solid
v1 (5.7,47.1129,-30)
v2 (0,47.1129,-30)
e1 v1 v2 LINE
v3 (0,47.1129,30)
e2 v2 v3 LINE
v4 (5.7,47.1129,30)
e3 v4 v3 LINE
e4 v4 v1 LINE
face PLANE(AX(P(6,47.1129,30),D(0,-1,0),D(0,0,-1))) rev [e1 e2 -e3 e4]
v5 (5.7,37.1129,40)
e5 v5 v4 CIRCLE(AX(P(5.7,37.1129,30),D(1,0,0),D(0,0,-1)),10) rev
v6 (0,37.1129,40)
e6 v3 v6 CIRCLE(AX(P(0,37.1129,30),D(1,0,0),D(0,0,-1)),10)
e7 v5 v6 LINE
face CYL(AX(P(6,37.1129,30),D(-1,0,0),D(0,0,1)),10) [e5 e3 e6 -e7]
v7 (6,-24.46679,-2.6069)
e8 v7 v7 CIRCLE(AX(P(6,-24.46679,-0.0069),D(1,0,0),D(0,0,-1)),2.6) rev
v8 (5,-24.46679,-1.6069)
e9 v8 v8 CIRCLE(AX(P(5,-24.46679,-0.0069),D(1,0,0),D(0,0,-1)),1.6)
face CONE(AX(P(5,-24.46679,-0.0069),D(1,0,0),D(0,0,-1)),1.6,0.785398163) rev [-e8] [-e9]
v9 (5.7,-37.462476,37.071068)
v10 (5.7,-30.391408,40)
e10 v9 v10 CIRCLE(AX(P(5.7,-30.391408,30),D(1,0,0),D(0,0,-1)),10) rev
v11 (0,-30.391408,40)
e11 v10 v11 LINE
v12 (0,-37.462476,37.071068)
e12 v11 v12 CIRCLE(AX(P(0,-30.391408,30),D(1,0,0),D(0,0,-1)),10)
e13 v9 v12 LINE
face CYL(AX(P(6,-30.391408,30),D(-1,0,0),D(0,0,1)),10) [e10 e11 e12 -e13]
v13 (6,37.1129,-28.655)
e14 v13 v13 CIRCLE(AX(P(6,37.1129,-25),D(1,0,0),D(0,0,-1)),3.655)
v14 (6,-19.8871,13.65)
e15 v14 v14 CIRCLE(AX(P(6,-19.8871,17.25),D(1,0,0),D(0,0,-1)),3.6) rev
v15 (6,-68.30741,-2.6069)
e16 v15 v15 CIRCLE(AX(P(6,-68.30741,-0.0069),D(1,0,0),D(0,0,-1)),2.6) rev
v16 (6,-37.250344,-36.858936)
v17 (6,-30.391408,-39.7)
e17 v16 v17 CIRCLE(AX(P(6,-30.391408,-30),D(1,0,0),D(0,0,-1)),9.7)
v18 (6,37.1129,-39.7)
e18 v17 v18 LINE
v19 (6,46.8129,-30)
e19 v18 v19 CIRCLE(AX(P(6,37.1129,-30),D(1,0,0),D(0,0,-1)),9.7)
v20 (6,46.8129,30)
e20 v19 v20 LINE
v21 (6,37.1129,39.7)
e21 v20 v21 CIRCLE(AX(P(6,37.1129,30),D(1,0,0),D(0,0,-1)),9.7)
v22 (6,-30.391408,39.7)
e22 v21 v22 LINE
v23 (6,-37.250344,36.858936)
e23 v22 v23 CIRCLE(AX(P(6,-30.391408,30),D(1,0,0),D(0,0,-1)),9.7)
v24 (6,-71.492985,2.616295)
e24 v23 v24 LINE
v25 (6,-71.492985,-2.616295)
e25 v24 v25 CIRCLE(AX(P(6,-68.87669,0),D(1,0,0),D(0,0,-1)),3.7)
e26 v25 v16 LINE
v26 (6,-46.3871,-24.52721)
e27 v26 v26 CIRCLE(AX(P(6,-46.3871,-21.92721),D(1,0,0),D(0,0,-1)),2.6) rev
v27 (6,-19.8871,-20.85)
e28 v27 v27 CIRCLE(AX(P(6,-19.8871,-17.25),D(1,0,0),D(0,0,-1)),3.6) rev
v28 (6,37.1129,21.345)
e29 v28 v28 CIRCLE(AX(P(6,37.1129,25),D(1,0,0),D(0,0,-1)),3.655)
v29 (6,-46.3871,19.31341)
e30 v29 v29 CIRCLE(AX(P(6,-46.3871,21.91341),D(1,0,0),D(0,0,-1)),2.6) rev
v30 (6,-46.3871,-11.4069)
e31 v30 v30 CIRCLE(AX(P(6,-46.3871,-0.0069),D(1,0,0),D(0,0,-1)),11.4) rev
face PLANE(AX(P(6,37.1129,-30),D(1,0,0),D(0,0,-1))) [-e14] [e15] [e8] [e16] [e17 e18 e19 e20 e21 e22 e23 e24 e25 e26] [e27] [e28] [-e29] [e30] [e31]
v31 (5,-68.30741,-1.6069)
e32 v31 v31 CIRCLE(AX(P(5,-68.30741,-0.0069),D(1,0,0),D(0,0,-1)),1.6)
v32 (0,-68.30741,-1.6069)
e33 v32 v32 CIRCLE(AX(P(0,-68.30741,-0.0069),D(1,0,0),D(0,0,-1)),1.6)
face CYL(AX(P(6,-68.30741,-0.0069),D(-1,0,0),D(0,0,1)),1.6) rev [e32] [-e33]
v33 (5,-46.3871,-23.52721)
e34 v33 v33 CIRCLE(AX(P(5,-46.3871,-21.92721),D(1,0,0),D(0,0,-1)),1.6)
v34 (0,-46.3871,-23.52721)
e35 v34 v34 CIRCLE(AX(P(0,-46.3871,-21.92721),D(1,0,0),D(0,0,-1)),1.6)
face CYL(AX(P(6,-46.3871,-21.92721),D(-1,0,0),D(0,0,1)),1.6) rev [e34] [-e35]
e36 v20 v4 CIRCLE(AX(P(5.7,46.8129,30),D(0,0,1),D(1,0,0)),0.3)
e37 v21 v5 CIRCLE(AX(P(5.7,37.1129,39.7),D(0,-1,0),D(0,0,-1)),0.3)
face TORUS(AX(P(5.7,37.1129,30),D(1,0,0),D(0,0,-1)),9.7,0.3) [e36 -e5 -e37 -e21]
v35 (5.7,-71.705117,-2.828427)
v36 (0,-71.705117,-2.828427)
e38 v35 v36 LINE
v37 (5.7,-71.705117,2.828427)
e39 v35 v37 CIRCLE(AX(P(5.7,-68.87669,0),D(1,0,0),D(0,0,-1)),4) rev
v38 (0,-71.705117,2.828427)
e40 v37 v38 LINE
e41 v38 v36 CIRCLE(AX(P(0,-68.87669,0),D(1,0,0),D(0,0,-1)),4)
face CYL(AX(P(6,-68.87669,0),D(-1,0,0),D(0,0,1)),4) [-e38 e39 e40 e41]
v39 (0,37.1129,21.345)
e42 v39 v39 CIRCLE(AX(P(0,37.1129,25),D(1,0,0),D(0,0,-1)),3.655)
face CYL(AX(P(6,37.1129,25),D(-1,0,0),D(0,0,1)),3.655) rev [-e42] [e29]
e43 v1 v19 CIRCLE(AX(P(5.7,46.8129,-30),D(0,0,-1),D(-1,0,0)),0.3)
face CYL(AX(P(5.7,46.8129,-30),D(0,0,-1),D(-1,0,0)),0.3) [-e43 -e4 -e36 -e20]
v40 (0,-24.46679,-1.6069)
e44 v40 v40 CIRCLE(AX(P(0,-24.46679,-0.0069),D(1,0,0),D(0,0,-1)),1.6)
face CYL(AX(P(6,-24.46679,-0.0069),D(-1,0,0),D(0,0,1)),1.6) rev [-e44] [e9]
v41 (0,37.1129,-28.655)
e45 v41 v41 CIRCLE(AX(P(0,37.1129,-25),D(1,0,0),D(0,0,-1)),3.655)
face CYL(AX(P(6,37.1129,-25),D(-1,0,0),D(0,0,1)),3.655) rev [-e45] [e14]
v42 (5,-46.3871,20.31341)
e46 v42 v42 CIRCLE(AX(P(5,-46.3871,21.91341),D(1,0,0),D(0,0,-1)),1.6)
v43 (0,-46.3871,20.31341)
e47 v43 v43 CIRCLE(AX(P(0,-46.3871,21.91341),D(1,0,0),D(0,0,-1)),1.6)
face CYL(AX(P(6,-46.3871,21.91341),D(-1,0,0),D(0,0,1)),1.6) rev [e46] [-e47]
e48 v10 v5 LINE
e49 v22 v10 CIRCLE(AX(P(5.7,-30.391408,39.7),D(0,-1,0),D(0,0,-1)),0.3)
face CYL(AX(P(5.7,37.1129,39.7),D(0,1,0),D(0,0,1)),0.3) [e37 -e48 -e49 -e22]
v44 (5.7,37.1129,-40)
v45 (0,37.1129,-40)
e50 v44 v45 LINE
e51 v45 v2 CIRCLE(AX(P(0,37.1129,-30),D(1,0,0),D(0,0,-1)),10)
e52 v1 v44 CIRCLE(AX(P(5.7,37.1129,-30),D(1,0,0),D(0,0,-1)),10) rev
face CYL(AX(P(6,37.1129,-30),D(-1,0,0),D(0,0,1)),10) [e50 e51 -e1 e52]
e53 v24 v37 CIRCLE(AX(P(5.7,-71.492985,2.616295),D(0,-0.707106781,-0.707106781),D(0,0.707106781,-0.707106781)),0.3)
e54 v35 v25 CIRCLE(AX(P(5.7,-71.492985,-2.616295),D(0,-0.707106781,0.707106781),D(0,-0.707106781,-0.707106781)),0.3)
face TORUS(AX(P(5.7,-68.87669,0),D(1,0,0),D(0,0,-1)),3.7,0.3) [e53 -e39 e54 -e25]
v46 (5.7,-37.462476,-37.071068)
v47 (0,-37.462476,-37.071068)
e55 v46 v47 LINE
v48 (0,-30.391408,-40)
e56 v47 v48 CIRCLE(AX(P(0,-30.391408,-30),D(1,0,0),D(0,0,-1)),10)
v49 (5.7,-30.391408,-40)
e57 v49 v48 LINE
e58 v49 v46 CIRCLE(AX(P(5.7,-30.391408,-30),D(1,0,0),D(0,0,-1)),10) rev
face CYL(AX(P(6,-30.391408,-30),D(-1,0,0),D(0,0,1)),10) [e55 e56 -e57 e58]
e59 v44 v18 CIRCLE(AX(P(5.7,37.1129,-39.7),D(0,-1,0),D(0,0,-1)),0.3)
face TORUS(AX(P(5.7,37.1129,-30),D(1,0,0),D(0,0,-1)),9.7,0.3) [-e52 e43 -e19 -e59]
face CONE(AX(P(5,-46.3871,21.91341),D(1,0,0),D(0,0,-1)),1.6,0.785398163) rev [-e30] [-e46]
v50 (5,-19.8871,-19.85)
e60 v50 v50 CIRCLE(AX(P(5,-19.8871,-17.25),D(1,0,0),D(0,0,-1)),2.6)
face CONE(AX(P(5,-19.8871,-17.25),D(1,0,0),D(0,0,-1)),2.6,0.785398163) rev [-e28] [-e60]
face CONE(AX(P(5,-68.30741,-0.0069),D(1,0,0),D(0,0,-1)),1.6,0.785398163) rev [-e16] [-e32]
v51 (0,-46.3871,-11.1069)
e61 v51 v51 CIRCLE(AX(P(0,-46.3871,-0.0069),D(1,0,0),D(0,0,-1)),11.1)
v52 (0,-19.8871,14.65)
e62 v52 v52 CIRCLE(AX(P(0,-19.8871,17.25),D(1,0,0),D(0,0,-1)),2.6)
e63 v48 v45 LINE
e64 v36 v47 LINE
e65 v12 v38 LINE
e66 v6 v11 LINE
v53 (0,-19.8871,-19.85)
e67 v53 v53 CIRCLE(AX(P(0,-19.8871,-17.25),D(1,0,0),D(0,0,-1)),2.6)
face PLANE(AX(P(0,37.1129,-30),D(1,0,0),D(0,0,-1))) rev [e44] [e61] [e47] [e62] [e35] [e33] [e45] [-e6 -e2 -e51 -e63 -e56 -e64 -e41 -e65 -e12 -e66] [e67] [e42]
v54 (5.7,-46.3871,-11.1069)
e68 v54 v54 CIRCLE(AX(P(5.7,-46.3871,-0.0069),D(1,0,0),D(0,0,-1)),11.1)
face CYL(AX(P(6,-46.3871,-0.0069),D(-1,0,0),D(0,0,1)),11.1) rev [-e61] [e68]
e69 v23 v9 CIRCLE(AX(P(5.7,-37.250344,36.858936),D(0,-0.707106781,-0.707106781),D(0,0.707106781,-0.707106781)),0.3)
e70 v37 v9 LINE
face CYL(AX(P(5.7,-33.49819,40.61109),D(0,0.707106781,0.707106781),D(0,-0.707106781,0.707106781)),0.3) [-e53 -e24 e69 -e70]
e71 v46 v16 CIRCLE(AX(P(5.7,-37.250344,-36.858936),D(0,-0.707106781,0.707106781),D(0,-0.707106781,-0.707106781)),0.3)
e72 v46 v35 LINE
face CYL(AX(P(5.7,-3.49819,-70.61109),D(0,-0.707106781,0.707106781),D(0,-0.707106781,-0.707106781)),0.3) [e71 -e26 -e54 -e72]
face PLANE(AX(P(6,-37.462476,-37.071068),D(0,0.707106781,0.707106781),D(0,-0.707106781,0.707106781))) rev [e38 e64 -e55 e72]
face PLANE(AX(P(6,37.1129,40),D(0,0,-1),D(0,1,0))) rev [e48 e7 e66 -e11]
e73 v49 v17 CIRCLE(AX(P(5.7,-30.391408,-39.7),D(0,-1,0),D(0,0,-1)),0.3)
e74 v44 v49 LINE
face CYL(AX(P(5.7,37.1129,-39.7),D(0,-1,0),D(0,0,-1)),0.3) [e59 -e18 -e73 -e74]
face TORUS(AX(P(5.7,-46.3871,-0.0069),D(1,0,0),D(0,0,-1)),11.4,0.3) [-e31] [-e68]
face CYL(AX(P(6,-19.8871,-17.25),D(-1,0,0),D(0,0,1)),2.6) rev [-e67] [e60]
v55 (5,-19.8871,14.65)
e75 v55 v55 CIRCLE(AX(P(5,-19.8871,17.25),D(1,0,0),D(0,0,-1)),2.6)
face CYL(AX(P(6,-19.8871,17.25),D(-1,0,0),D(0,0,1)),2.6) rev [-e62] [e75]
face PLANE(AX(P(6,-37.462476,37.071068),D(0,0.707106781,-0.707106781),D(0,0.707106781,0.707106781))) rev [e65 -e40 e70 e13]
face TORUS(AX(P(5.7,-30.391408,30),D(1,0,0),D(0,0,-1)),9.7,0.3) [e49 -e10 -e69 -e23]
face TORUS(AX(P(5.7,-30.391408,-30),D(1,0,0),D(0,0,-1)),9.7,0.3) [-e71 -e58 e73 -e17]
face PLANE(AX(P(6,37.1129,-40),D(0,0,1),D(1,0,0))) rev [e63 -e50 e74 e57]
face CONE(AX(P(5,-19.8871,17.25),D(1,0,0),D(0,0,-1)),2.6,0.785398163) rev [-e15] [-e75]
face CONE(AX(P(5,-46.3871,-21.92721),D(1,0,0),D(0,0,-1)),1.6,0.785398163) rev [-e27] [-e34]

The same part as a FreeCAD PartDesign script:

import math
import FreeCAD as App
import Part
import Sketcher

V = App.Vector


def edges_at(feature, points):
    """Names of the edges that pass closest to the given points."""
    edges = feature.Shape.Edges
    near = lambda p: min(range(len(edges)), key=lambda i: edges[i].distToShape(Part.Vertex(*p))[0])
    return sorted({f"Edge{near(p) + 1}" for p in points})

doc = App.newDocument("Part")
body = doc.addObject("PartDesign::Body", "Body")

# Sketch on YZ plane
sketch1 = body.newObject("Sketcher::SketchObject", "Sketch")
sketch1.AttachmentSupport = (doc.getObject("YZ_Plane"), [""])
sketch1.MapMode = "FlatFace"
sketch1.addGeometry([
    Part.LineSegment(V(47.1, -30, 0), V(47.1, 30, 0)),  # 0
    Part.ArcOfCircle(Part.Circle(V(37.1, 30, 0), V(0, 0, 1), 10), math.radians(0), math.radians(90)),  # 1
    Part.LineSegment(V(37.1, 40, 0), V(-30.4, 40, 0)),  # 2
    Part.ArcOfCircle(Part.Circle(V(-30.4, 30, 0), V(0, 0, 1), 10), math.radians(90), math.radians(135)),  # 3
    Part.LineSegment(V(-37.5, 37.1, 0), V(-71.7, 2.8, 0)),  # 4
    Part.ArcOfCircle(Part.Circle(V(-68.9, 0, 0), V(0, 0, 1), 4), math.radians(135), math.radians(225)),  # 5
    Part.LineSegment(V(-71.7, -2.8, 0), V(-37.5, -37.1, 0)),  # 6
    Part.ArcOfCircle(Part.Circle(V(-30.4, -30, 0), V(0, 0, 1), 10), math.radians(-135), math.radians(-90)),  # 7
    Part.LineSegment(V(-30.4, -40, 0), V(37.1, -40, 0)),  # 8
    Part.ArcOfCircle(Part.Circle(V(37.1, -30, 0), V(0, 0, 1), 10), math.radians(-90), math.radians(0)),  # 9
    Part.Circle(V(-46.4, -21.9, 0), V(0, 0, 1), 1.6),  # 10
    Part.Circle(V(-68.3, 0, 0), V(0, 0, 1), 1.6),  # 11
    Part.Circle(V(-46.4, 0, 0), V(0, 0, 1), 11.1),  # 12
    Part.Circle(V(-19.9, -17.2, 0), V(0, 0, 1), 2.6),  # 13
    Part.Circle(V(-24.5, 0, 0), V(0, 0, 1), 1.6),  # 14
    Part.Circle(V(-46.4, 21.9, 0), V(0, 0, 1), 1.6),  # 15
    Part.Circle(V(-19.9, 17.2, 0), V(0, 0, 1), 2.6),  # 16
    Part.Circle(V(37.1, -25, 0), V(0, 0, 1), 3.7),  # 17
    Part.Circle(V(37.1, 25, 0), V(0, 0, 1), 3.7),  # 18
], False)
sketch1.addConstraint([
    Sketcher.Constraint("Tangent", 0, 2, 1, 1),
    Sketcher.Constraint("Tangent", 1, 2, 2, 1),
    Sketcher.Constraint("Tangent", 2, 2, 3, 1),
    Sketcher.Constraint("Tangent", 3, 2, 4, 1),
    Sketcher.Constraint("Tangent", 4, 2, 5, 1),
    Sketcher.Constraint("Tangent", 5, 2, 6, 1),
    Sketcher.Constraint("Tangent", 6, 2, 7, 1),
    Sketcher.Constraint("Tangent", 7, 2, 8, 1),
    Sketcher.Constraint("Tangent", 8, 2, 9, 1),
    Sketcher.Constraint("Tangent", 9, 2, 0, 1),
    Sketcher.Constraint("Vertical", 0),
    Sketcher.Constraint("Horizontal", 2),
    Sketcher.Constraint("Horizontal", 8),
    Sketcher.Constraint("Equal", 1, 3),
    Sketcher.Constraint("Equal", 3, 7),
    Sketcher.Constraint("Equal", 7, 9),
    Sketcher.Constraint("Equal", 10, 11),
    Sketcher.Constraint("Equal", 11, 14),
    Sketcher.Constraint("Equal", 14, 15),
    Sketcher.Constraint("Equal", 13, 16),
    Sketcher.Constraint("Equal", 17, 18),
    Sketcher.Constraint("Symmetric", 3, 3, 7, 3, -1),
    Sketcher.Constraint("Symmetric", 13, 3, 16, 3, -1),
    Sketcher.Constraint("Symmetric", 17, 3, 18, 3, -1),
    Sketcher.Constraint("PointOnObject", 5, 3, -1),
    Sketcher.Constraint("Perpendicular", 4, 6),
    Sketcher.Constraint("Horizontal", 11, 3, 12, 3),
    Sketcher.Constraint("Horizontal", 12, 3, 14, 3),
    Sketcher.Constraint("Vertical", 10, 3, 12, 3),
    Sketcher.Constraint("Vertical", 12, 3, 15, 3),
    Sketcher.Constraint("Vertical", 9, 3, 17, 3),
    Sketcher.Constraint("Radius", 1, 10.0),
    Sketcher.Constraint("Radius", 5, 4.0),
    Sketcher.Constraint("Diameter", 10, 3.2),
    Sketcher.Constraint("Diameter", 12, 22.2),
    Sketcher.Constraint("Diameter", 13, 5.2),
    Sketcher.Constraint("Diameter", 17, 7.31),
    Sketcher.Constraint("DistanceY", 0, 1, 0, 2, 60.0),
    Sketcher.Constraint("DistanceY", 17, 3, -1, 1, 25.0),
    Sketcher.Constraint("DistanceX", 13, 3, 17, 3, 57.0),
    Sketcher.Constraint("DistanceX", 10, 3, 9, 3, 83.5),
    Sketcher.Constraint("DistanceY", 13, 3, 16, 3, 34.5),
    Sketcher.Constraint("DistanceX", 2, 2, 2, 1, 67.504308),
    Sketcher.Constraint("DistanceX", -1, 1, 1, 3, 37.1129),
    Sketcher.Constraint("DistanceY", 11, 3, -1, 1, 0.0069),
    Sketcher.Constraint("DistanceY", 10, 3, -1, 1, 21.92721),
    Sketcher.Constraint("DistanceX", 11, 3, -1, 1, 68.30741),
    Sketcher.Constraint("DistanceX", 14, 3, -1, 1, 24.46679),
    Sketcher.Constraint("DistanceY", -1, 1, 15, 3, 21.91341),
])
pad1 = body.newObject("PartDesign::Pad", "Pad")
pad1.Profile = sketch1
pad1.Length = 6
doc.recompute()

fillet = body.newObject("PartDesign::Fillet", "Fillet")
fillet.Base = (pad1, edges_at(pad1, [
    (6, 44.184, 37.071),
    (6, 3.361, 40),
    (6, -34.218, 39.239),
    (6, -54.584, 19.95),
    (6, -72.877, 0),
    (6, -54.584, -19.95),
    (6, -34.218, -39.239),
    (6, 3.361, -40),
    (6, 44.184, -37.071),
    (6, -46.387, 11.093),
    (6, 47.113, 0),
]))
fillet.Radius = 0.3
doc.recompute()

chamfer = body.newObject("PartDesign::Chamfer", "Chamfer")
chamfer.Base = (fillet, edges_at(fillet, [
    (6, -24.467, 1.593),
    (6, -46.387, 23.513),
    (6, -46.387, -20.327),
    (6, -68.307, 1.593),
    (6, -19.887, -14.65),
    (6, -19.887, 19.85),
]))
chamfer.Size = 1

doc.recompute()
